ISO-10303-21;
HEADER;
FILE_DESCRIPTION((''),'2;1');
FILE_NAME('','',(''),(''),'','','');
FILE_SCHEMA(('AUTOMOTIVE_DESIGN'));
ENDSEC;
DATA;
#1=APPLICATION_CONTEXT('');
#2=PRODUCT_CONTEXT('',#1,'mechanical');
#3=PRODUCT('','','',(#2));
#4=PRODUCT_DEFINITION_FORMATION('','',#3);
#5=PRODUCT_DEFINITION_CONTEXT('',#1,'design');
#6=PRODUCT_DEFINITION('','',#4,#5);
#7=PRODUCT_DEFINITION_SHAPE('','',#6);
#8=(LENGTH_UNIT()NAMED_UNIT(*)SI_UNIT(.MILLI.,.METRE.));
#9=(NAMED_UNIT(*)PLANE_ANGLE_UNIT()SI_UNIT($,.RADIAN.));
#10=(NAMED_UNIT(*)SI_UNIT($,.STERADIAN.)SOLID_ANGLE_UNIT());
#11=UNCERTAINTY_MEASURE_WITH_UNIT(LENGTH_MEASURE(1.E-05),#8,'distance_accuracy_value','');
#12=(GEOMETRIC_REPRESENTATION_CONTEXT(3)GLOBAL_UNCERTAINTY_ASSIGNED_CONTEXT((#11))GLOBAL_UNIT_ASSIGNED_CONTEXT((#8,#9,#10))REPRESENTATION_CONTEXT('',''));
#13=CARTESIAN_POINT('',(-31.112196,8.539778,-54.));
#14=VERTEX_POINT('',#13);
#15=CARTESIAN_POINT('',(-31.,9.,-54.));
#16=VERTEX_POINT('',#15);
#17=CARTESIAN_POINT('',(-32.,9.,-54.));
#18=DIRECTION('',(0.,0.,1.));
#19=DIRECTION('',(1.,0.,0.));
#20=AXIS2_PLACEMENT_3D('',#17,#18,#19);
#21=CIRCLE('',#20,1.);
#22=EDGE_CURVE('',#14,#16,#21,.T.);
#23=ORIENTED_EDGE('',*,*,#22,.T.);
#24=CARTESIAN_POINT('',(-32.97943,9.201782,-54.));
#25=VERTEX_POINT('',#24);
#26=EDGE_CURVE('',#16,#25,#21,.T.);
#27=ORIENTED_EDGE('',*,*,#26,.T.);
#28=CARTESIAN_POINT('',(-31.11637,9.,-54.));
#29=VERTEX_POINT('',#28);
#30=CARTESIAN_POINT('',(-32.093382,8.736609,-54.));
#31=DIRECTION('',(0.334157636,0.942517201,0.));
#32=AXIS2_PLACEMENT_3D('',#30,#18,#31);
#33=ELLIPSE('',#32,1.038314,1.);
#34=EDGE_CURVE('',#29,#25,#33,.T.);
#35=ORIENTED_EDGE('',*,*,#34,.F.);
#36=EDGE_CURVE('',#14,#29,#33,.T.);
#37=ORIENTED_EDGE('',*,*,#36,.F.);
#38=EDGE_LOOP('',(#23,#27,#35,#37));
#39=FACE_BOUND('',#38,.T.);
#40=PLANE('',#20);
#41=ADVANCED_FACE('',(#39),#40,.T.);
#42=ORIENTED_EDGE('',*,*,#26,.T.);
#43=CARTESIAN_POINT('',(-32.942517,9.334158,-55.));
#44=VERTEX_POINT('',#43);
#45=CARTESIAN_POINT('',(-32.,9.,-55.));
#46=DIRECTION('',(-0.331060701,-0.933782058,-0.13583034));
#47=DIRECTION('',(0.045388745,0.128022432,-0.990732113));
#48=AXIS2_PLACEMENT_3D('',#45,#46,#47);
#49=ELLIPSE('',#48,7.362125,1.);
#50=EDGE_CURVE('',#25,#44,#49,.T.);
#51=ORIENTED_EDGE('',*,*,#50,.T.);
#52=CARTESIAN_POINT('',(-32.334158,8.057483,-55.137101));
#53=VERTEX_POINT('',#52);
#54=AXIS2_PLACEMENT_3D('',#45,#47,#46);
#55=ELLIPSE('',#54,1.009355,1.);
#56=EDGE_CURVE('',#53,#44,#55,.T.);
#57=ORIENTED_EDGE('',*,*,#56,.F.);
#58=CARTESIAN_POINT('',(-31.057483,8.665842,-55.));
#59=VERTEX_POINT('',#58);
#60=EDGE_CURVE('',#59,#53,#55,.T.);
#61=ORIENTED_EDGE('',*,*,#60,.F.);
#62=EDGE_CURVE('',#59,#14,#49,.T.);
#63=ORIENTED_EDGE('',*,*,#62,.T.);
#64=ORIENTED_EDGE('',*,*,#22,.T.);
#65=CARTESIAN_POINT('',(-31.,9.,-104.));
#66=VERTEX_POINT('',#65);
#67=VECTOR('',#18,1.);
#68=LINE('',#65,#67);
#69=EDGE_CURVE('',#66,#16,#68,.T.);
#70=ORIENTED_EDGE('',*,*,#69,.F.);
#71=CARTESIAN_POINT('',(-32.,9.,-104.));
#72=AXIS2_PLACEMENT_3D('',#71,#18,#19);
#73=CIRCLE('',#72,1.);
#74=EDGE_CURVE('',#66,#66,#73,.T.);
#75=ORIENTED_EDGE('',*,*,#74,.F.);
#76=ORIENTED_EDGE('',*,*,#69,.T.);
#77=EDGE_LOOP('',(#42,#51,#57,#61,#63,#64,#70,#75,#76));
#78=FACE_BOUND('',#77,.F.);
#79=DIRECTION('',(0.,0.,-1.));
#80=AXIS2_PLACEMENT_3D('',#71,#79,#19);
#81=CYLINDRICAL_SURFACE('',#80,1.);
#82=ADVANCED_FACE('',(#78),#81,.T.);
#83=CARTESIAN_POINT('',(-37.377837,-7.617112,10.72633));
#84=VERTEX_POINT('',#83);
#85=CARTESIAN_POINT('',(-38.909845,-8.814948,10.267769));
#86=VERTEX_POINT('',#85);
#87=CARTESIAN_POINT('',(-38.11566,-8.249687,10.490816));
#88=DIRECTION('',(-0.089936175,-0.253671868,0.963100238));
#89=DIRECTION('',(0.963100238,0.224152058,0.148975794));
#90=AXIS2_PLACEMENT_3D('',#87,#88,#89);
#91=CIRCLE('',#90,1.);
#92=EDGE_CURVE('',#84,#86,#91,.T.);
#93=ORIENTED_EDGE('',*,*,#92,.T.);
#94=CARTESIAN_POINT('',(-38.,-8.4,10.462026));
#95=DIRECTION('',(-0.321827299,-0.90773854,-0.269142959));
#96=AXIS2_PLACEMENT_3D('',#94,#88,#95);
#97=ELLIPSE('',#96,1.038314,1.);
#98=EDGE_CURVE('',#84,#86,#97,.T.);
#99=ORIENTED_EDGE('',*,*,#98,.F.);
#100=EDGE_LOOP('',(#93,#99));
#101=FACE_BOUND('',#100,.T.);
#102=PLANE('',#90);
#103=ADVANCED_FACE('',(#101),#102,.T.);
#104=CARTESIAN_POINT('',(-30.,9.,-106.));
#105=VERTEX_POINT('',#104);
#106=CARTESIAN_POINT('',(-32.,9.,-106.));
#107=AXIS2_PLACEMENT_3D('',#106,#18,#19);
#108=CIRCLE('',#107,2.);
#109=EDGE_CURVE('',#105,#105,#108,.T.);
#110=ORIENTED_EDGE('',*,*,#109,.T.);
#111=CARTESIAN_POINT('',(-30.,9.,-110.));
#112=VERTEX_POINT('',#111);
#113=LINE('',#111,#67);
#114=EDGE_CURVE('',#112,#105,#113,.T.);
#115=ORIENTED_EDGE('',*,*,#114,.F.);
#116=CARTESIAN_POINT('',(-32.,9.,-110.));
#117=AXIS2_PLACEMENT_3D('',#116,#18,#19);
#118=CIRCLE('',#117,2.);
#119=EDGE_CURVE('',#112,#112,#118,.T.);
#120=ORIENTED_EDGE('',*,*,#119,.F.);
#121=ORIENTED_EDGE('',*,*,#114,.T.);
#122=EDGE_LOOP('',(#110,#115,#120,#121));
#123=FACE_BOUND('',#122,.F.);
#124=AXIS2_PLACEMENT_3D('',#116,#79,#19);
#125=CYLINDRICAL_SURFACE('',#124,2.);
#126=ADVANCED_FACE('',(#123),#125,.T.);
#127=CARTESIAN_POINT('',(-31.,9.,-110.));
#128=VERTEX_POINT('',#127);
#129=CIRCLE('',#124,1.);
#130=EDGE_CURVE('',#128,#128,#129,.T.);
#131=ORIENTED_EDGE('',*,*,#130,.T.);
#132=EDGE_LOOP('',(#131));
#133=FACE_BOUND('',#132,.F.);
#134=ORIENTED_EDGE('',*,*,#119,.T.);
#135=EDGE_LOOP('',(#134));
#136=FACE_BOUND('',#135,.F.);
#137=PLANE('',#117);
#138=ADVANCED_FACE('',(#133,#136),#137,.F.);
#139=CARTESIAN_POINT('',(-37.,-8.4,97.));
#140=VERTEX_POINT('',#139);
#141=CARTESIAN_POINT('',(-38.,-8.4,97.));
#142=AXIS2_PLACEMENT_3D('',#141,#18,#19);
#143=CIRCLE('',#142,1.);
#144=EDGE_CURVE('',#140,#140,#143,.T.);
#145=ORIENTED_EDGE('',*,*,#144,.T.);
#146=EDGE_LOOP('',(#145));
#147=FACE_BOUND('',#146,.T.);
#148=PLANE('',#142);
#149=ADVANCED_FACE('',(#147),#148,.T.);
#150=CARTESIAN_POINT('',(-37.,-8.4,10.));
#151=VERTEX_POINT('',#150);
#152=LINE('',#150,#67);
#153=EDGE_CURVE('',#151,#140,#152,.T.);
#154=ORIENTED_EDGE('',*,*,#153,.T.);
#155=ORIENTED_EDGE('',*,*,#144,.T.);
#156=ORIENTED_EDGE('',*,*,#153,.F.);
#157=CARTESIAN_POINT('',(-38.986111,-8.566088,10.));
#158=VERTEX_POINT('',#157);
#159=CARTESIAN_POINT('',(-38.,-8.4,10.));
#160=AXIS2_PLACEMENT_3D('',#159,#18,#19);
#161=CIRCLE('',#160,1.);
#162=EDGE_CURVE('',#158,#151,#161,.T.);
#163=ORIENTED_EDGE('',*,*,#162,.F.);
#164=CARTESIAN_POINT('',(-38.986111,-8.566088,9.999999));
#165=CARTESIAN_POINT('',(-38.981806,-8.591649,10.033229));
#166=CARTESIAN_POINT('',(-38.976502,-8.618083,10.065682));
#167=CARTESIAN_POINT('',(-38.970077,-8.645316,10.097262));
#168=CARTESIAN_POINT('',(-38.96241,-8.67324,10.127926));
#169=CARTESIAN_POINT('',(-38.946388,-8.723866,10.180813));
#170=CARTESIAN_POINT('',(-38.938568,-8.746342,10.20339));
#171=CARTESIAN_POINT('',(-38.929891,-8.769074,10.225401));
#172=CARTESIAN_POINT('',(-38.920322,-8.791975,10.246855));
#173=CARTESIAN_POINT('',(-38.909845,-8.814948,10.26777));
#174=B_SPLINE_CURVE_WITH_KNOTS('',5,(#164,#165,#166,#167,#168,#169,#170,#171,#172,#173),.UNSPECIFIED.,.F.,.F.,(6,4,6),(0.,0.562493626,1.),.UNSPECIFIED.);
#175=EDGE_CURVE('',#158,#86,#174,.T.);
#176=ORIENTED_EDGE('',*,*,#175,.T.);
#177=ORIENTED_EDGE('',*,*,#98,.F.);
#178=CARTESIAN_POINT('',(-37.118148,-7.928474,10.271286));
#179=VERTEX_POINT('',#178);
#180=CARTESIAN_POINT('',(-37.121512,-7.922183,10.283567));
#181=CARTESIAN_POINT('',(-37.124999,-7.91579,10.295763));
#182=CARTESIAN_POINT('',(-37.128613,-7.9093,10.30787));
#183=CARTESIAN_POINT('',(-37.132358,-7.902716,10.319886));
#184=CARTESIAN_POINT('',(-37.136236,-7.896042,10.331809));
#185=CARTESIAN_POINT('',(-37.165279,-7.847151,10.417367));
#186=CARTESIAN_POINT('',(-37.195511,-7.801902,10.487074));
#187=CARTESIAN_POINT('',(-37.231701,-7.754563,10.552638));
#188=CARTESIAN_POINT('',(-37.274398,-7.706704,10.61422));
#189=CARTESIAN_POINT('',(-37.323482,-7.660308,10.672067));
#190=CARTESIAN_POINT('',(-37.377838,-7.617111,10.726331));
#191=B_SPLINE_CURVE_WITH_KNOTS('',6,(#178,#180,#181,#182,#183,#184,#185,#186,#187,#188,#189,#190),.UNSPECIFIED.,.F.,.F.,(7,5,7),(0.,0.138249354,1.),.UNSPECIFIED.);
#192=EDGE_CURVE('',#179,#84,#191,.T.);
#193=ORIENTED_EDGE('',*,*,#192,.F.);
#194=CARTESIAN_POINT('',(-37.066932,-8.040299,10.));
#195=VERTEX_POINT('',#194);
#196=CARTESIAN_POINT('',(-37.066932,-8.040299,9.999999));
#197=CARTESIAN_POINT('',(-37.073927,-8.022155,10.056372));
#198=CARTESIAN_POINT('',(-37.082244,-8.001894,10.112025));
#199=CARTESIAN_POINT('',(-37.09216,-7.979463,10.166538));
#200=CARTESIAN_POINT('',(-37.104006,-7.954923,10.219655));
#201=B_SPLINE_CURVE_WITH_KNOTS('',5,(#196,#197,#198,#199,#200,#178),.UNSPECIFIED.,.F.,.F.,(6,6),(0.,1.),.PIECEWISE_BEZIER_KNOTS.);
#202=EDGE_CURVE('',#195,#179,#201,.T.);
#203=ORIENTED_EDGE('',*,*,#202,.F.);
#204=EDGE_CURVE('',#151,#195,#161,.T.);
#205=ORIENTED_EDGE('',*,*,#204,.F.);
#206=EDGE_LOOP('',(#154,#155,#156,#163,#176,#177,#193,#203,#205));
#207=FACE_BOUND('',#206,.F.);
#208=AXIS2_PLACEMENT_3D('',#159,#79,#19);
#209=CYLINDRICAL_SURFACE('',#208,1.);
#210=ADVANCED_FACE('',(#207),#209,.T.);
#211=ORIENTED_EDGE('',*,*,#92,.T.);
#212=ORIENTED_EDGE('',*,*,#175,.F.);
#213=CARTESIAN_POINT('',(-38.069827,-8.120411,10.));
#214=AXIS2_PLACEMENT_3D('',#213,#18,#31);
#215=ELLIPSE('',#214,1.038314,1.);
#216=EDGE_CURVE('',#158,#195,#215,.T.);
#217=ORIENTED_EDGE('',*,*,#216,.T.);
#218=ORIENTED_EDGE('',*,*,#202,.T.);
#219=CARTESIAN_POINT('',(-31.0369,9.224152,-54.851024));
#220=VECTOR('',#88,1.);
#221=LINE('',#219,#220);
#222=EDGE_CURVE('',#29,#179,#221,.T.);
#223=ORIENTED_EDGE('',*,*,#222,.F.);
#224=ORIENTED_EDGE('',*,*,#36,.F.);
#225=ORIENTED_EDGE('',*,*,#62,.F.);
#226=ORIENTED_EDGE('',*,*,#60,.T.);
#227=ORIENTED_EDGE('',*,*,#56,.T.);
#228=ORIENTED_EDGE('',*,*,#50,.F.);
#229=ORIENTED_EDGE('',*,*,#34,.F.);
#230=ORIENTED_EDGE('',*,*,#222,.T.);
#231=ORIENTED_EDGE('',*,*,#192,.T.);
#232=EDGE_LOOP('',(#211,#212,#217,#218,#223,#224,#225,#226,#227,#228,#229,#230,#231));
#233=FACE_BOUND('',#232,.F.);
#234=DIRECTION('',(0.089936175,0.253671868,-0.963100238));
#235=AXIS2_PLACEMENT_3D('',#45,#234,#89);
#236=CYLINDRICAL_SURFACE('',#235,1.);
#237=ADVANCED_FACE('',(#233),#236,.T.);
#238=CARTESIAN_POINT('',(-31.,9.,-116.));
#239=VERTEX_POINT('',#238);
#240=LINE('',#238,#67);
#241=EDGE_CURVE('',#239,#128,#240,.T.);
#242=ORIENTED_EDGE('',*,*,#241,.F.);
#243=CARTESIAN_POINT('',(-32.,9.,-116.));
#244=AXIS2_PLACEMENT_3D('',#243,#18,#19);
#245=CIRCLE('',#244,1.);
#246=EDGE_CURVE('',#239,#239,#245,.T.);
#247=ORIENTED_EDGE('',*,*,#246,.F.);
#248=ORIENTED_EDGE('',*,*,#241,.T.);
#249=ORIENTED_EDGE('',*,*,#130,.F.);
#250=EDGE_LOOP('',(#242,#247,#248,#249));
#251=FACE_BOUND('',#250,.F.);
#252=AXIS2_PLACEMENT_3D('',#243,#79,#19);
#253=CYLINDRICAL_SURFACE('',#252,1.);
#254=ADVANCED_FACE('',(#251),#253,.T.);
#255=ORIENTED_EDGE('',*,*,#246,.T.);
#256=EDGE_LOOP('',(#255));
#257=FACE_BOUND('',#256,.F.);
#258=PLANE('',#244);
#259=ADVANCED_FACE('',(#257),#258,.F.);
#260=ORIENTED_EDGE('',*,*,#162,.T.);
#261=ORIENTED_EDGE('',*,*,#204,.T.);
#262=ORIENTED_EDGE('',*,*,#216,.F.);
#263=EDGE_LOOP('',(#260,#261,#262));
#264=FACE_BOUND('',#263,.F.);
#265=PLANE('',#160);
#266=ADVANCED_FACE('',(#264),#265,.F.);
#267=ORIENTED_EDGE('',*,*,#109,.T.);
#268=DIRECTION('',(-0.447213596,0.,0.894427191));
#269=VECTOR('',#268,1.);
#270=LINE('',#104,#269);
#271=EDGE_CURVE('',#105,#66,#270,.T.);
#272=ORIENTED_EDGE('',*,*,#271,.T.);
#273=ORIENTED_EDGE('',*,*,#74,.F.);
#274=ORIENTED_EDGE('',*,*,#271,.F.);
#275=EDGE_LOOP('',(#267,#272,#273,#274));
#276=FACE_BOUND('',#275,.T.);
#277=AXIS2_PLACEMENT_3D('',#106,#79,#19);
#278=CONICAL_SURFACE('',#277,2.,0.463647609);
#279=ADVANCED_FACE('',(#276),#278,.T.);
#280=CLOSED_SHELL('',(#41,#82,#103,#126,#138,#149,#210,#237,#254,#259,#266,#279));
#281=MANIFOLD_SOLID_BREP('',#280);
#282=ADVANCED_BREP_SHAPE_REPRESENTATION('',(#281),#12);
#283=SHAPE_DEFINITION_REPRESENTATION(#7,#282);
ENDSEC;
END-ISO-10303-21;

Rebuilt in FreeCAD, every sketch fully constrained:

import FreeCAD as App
import Part
import Sketcher

V = App.Vector
Q = App.Units.Quantity

doc = App.newDocument("Part")
body = doc.addObject("PartDesign::Body", "Body")

sketch1 = body.newObject("Sketcher::SketchObject", "Sketch")
sketch1.AttachmentSupport = (doc.getObject("XY_Plane"), [""])
sketch1.MapMode = "FlatFace"
sketch1.addGeometry(Part.Circle(V(0, 0, 0), V(0, 0, 1), 1), False)
sketch1.addConstraint([
    Sketcher.Constraint("Coincident", 0, 3, -1, 1),
    Sketcher.Constraint("Diameter", 0, Q("2 mm")),
])
pad1 = body.newObject("PartDesign::Pad", "Pad")
pad1.Profile = sketch1
pad1.Length = 68
body2 = doc.addObject("PartDesign::Body", "Body001")
doc.recompute()

body.Placement = App.Placement(V(0, 0, 0), App.Rotation(V(1, 0, 0), 13.101784))
boolean = body2.newObject("PartDesign::Boolean", "Boolean")
boolean.Type = "Fuse"
boolean.addObjects([body])
body3 = doc.addObject("PartDesign::Body", "Body002")
doc.recompute()

body2.Placement = App.Placement(V(0, 0, 0), App.Rotation(V(0, 1, 0), 351.432423))
boolean2 = body3.newObject("PartDesign::Boolean", "Boolean001")
boolean2.Type = "Fuse"
boolean2.addObjects([body2])
body4 = doc.addObject("PartDesign::Body", "Body003")
doc.recompute()

body3.Placement = App.Placement(V(-32, 9, -55), App.Rotation(V(0, 0, 1), 13.101784))
boolean3 = body4.newObject("PartDesign::Boolean", "Boolean002")
boolean3.Type = "Fuse"
boolean3.addObjects([body3])
body5 = doc.addObject("PartDesign::Body", "Body004")

sketch2 = body5.newObject("Sketcher::SketchObject", "Sketch001")
sketch2.AttachmentSupport = (doc.getObject("XY_Plane004"), [""])
sketch2.MapMode = "FlatFace"
sketch2.AttachmentOffset = App.Placement(V(0, 0, -104), App.Rotation())
sketch2.addGeometry(Part.Circle(V(-32, 9, 0), V(0, 0, 1), 1), False)
sketch2.addConstraint([
    Sketcher.Constraint("Diameter", 0, Q("2 mm")),
    Sketcher.Constraint("DistanceX", 0, 3, -1, 1, Q("32 mm")),
    Sketcher.Constraint("DistanceY", -1, 1, 0, 3, Q("9 mm")),
])
pad2 = body5.newObject("PartDesign::Pad", "Pad001")
pad2.Profile = sketch2
pad2.Length = 50
doc.recompute()

boolean4 = body5.newObject("PartDesign::Boolean", "Boolean003")
boolean4.Type = "Fuse"
boolean4.addObjects([body4])
body6 = doc.addObject("PartDesign::Body", "Body005")

sketch3 = body6.newObject("Sketcher::SketchObject", "Sketch002")
sketch3.AttachmentSupport = (doc.getObject("XY_Plane005"), [""])
sketch3.MapMode = "FlatFace"
sketch3.AttachmentOffset = App.Placement(V(0, 0, 10), App.Rotation())
sketch3.addGeometry(Part.Circle(V(-38, -8.4, 0), V(0, 0, 1), 1), False)
sketch3.addConstraint([
    Sketcher.Constraint("Diameter", 0, Q("2 mm")),
    Sketcher.Constraint("DistanceX", 0, 3, -1, 1, Q("38 mm")),
    Sketcher.Constraint("DistanceY", 0, 3, -1, 1, Q("8.4 mm")),
])
pad3 = body6.newObject("PartDesign::Pad", "Pad002")
pad3.Profile = sketch3
pad3.Length = 87
doc.recompute()

boolean5 = body6.newObject("PartDesign::Boolean", "Boolean004")
boolean5.Type = "Fuse"
boolean5.addObjects([body5])
body7 = doc.addObject("PartDesign::Body", "Body006")

sketch4 = body7.newObject("Sketcher::SketchObject", "Sketch003")
sketch4.AttachmentSupport = (doc.getObject("XZ_Plane006"), [""])
sketch4.MapMode = "FlatFace"
sketch4.AttachmentOffset = App.Placement(V(0, 0, -9), App.Rotation())
sketch4.addGeometry([
    Part.LineSegment(V(-32, -106, 0), V(-30, -106, 0)),
    Part.LineSegment(V(-30, -106, 0), V(-31, -104, 0)),
    Part.LineSegment(V(-31, -104, 0), V(-32, -104, 0)),
    Part.LineSegment(V(-32, -104, 0), V(-32, -106, 0)),
], False)
sketch4.addGeometry(Part.LineSegment(V(-32, -106, 0), V(-32, -104, 0)), True)
sketch4.addConstraint([
    Sketcher.Constraint("Coincident", 0, 2, 1, 1),
    Sketcher.Constraint("Coincident", 1, 2, 2, 1),
    Sketcher.Constraint("Coincident", 2, 2, 3, 1),
    Sketcher.Constraint("Coincident", 3, 2, 0, 1),
    Sketcher.Constraint("Horizontal", 0),
    Sketcher.Constraint("Horizontal", 2),
    Sketcher.Constraint("Vertical", 3),
    Sketcher.Constraint("Vertical", 4),
    Sketcher.Constraint("Coincident", 4, 1, 3, 2),
    Sketcher.Constraint("Horizontal", 1, 2, 4, 2),
    Sketcher.Constraint("Equal", 0, 3),
    Sketcher.Constraint("DistanceX", 0, 1, 0, 2, Q("2 mm")),
    Sketcher.Constraint("DistanceX", 2, 2, 2, 1, Q("1 mm")),
    Sketcher.Constraint("DistanceX", 0, 2, -1, 1, Q("30 mm")),
    Sketcher.Constraint("DistanceY", 0, 2, -1, 1, Q("106 mm")),
])
revolution = body7.newObject("PartDesign::Revolution", "Revolution")
revolution.Profile = sketch4
revolution.ReferenceAxis = (sketch4, ["Axis0"])
revolution.Angle = 360
body8 = doc.addObject("PartDesign::Body", "Body007")

sketch5 = body8.newObject("Sketcher::SketchObject", "Sketch004")
sketch5.AttachmentSupport = (doc.getObject("XY_Plane007"), [""])
sketch5.MapMode = "FlatFace"
sketch5.AttachmentOffset = App.Placement(V(0, 0, -110), App.Rotation())
sketch5.addGeometry(Part.Circle(V(-32, 9, 0), V(0, 0, 1), 2), False)
sketch5.addConstraint([
    Sketcher.Constraint("Diameter", 0, Q("4 mm")),
    Sketcher.Constraint("DistanceX", 0, 3, -1, 1, Q("32 mm")),
    Sketcher.Constraint("DistanceY", -1, 1, 0, 3, Q("9 mm")),
])
pad4 = body8.newObject("PartDesign::Pad", "Pad003")
pad4.Profile = sketch5
pad4.Length = 4
doc.recompute()

boolean6 = body8.newObject("PartDesign::Boolean", "Boolean005")
boolean6.Type = "Fuse"
boolean6.addObjects([body7])
doc.recompute()

boolean7 = body8.newObject("PartDesign::Boolean", "Boolean006")
boolean7.Type = "Fuse"
boolean7.addObjects([body6])
body9 = doc.addObject("PartDesign::Body", "Body008")

sketch6 = body9.newObject("Sketcher::SketchObject", "Sketch005")
sketch6.AttachmentSupport = (doc.getObject("XY_Plane008"), [""])
sketch6.MapMode = "FlatFace"
sketch6.AttachmentOffset = App.Placement(V(0, 0, -116), App.Rotation())
sketch6.addGeometry(Part.Circle(V(-32, 9, 0), V(0, 0, 1), 1), False)
sketch6.addConstraint([
    Sketcher.Constraint("Diameter", 0, Q("2 mm")),
    Sketcher.Constraint("DistanceX", 0, 3, -1, 1, Q("32 mm")),
    Sketcher.Constraint("DistanceY", -1, 1, 0, 3, Q("9 mm")),
])
pad5 = body9.newObject("PartDesign::Pad", "Pad004")
pad5.Profile = sketch6
pad5.Length = 8
doc.recompute()

boolean8 = body9.newObject("PartDesign::Boolean", "Boolean007")
boolean8.Type = "Fuse"
boolean8.addObjects([body8])

doc.recompute()
